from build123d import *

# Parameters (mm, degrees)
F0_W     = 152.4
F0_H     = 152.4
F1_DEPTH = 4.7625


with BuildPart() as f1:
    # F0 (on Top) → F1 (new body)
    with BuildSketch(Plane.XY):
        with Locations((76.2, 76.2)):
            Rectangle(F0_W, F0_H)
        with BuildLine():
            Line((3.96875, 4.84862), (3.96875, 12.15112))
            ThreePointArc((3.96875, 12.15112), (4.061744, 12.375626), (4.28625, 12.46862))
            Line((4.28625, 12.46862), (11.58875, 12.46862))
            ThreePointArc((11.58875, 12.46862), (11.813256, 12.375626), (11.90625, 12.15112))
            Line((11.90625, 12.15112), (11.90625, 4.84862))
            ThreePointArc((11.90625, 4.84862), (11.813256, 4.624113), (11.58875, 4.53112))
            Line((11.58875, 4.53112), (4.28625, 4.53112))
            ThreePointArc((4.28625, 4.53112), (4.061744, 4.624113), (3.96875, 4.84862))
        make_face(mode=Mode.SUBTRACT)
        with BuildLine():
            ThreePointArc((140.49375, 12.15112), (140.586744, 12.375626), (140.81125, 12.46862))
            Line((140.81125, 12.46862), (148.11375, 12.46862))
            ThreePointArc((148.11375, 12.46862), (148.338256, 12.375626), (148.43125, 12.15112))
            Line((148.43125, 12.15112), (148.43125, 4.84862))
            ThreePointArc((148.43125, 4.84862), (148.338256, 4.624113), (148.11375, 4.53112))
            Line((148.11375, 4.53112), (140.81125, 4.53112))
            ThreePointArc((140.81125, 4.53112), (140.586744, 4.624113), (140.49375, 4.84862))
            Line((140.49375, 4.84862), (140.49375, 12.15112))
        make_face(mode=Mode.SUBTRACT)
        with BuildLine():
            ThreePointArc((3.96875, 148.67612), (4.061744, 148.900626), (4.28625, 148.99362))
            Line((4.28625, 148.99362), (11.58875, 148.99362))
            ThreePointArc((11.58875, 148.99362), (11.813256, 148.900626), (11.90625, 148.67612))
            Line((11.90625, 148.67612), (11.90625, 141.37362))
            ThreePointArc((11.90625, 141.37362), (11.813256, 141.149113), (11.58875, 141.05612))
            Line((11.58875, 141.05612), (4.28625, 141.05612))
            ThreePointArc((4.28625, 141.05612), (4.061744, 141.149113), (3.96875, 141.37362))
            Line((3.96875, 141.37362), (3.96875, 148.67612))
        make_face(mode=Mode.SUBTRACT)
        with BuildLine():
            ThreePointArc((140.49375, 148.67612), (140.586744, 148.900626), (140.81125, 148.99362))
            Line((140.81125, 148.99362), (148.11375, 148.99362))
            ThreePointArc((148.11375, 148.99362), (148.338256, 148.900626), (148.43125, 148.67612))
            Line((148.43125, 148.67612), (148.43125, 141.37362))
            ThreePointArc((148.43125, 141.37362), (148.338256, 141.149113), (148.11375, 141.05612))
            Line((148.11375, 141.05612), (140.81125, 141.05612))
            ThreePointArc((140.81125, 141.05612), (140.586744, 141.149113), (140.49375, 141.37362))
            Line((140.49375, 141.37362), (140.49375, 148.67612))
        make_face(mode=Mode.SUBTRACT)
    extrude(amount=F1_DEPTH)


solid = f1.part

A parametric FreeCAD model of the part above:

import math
import FreeCAD as App
import Part
import Sketcher
Q = App.Units.Quantity

doc = App.newDocument("Part")
body = doc.addObject("PartDesign::Body", "Body")

sketch1 = doc.addObject("Sketcher::SketchObject", "Sketch")
body.addObject(sketch1)
sketch1.AttachmentSupport = (doc.XY_Plane, [""])
sketch1.MapMode = "FlatFace"
sketch1.addGeometry([
    Part.LineSegment(App.Vector(0, 152.4, 0), App.Vector(0, 0, 0)),
    Part.LineSegment(App.Vector(0, 0, 0), App.Vector(152.4, 0, 0)),
    Part.LineSegment(App.Vector(152.4, 0, 0), App.Vector(152.4, 152.4, 0)),
    Part.LineSegment(App.Vector(152.4, 152.4, 0), App.Vector(0, 152.4, 0)),
    Part.ArcOfCircle(Part.Circle(App.Vector(4.29, 4.85, 0), App.Vector(0, 0, 1), 0.32), math.radians(180), math.radians(270)),
    Part.LineSegment(App.Vector(3.97, 4.85, 0), App.Vector(3.97, 12.15, 0)),
    Part.ArcOfCircle(Part.Circle(App.Vector(4.29, 12.15, 0), App.Vector(0, 0, 1), 0.32), math.radians(90), math.radians(180)),
    Part.LineSegment(App.Vector(4.29, 12.47, 0), App.Vector(11.59, 12.47, 0)),
    Part.ArcOfCircle(Part.Circle(App.Vector(11.59, 12.15, 0), App.Vector(0, 0, 1), 0.32), math.radians(0), math.radians(90)),
    Part.LineSegment(App.Vector(11.91, 12.15, 0), App.Vector(11.91, 4.85, 0)),
    Part.ArcOfCircle(Part.Circle(App.Vector(11.59, 4.85, 0), App.Vector(0, 0, 1), 0.32), math.radians(-90), math.radians(0)),
    Part.LineSegment(App.Vector(11.59, 4.53, 0), App.Vector(4.29, 4.53, 0)),
    Part.LineSegment(App.Vector(140.49, 4.85, 0), App.Vector(140.49, 12.15, 0)),
    Part.ArcOfCircle(Part.Circle(App.Vector(140.81, 12.15, 0), App.Vector(0, 0, 1), 0.32), math.radians(90), math.radians(180)),
    Part.LineSegment(App.Vector(140.81, 12.47, 0), App.Vector(148.11, 12.47, 0)),
    Part.ArcOfCircle(Part.Circle(App.Vector(148.11, 12.15, 0), App.Vector(0, 0, 1), 0.32), math.radians(0), math.radians(90)),
    Part.LineSegment(App.Vector(148.43, 12.15, 0), App.Vector(148.43, 4.85, 0)),
    Part.ArcOfCircle(Part.Circle(App.Vector(148.11, 4.85, 0), App.Vector(0, 0, 1), 0.32), math.radians(-90), math.radians(0)),
    Part.LineSegment(App.Vector(148.11, 4.53, 0), App.Vector(140.81, 4.53, 0)),
    Part.ArcOfCircle(Part.Circle(App.Vector(140.81, 4.85, 0), App.Vector(0, 0, 1), 0.32), math.radians(180), math.radians(270)),
    Part.LineSegment(App.Vector(3.97, 141.37, 0), App.Vector(3.97, 148.68, 0)),
    Part.ArcOfCircle(Part.Circle(App.Vector(4.29, 148.68, 0), App.Vector(0, 0, 1), 0.32), math.radians(90), math.radians(180)),
    Part.LineSegment(App.Vector(4.29, 148.99, 0), App.Vector(11.59, 148.99, 0)),
    Part.ArcOfCircle(Part.Circle(App.Vector(11.59, 148.68, 0), App.Vector(0, 0, 1), 0.32), math.radians(0), math.radians(90)),
    Part.LineSegment(App.Vector(11.91, 148.68, 0), App.Vector(11.91, 141.37, 0)),
    Part.ArcOfCircle(Part.Circle(App.Vector(11.59, 141.37, 0), App.Vector(0, 0, 1), 0.32), math.radians(-90), math.radians(0)),
    Part.LineSegment(App.Vector(11.59, 141.06, 0), App.Vector(4.29, 141.06, 0)),
    Part.ArcOfCircle(Part.Circle(App.Vector(4.29, 141.37, 0), App.Vector(0, 0, 1), 0.32), math.radians(180), math.radians(270)),
    Part.LineSegment(App.Vector(140.49, 141.37, 0), App.Vector(140.49, 148.68, 0)),
    Part.ArcOfCircle(Part.Circle(App.Vector(140.81, 148.68, 0), App.Vector(0, 0, 1), 0.32), math.radians(90), math.radians(180)),
    Part.LineSegment(App.Vector(140.81, 148.99, 0), App.Vector(148.11, 148.99, 0)),
    Part.ArcOfCircle(Part.Circle(App.Vector(148.11, 148.68, 0), App.Vector(0, 0, 1), 0.32), math.radians(0), math.radians(90)),
    Part.LineSegment(App.Vector(148.43, 148.68, 0), App.Vector(148.43, 141.37, 0)),
    Part.ArcOfCircle(Part.Circle(App.Vector(148.11, 141.37, 0), App.Vector(0, 0, 1), 0.32), math.radians(-90), math.radians(0)),
    Part.LineSegment(App.Vector(148.11, 141.06, 0), App.Vector(140.81, 141.06, 0)),
    Part.ArcOfCircle(Part.Circle(App.Vector(140.81, 141.37, 0), App.Vector(0, 0, 1), 0.32), math.radians(180), math.radians(270)),
], False)
sketch1.addConstraint([
    Sketcher.Constraint("Coincident", 0, 2, 1, 1),
    Sketcher.Constraint("Coincident", 1, 2, 2, 1),
    Sketcher.Constraint("Coincident", 2, 2, 3, 1),
    Sketcher.Constraint("Coincident", 3, 2, 0, 1),
    Sketcher.Constraint("Tangent", 4, 1, 5, 1),
    Sketcher.Constraint("Coincident", 5, 2, 6, 2),
    Sketcher.Constraint("Coincident", 6, 1, 7, 1),
    Sketcher.Constraint("Coincident", 7, 2, 8, 2),
    Sketcher.Constraint("Coincident", 8, 1, 9, 1),
    Sketcher.Constraint("Tangent", 9, 2, 10, 2),
    Sketcher.Constraint("Tangent", 10, 1, 11, 1),
    Sketcher.Constraint("Tangent", 11, 2, 4, 2),
    Sketcher.Constraint("Coincident", 12, 2, 13, 2),
    Sketcher.Constraint("Coincident", 13, 1, 14, 1),
    Sketcher.Constraint("Coincident", 14, 2, 15, 2),
    Sketcher.Constraint("Coincident", 15, 1, 16, 1),
    Sketcher.Constraint("Tangent", 16, 2, 17, 2),
    Sketcher.Constraint("Tangent", 17, 1, 18, 1),
    Sketcher.Constraint("Tangent", 18, 2, 19, 2),
    Sketcher.Constraint("Tangent", 19, 1, 12, 1),
    Sketcher.Constraint("Coincident", 20, 2, 21, 2),
    Sketcher.Constraint("Coincident", 21, 1, 22, 1),
    Sketcher.Constraint("Coincident", 22, 2, 23, 2),
    Sketcher.Constraint("Coincident", 23, 1, 24, 1),
    Sketcher.Constraint("Tangent", 24, 2, 25, 2),
    Sketcher.Constraint("Tangent", 25, 1, 26, 1),
    Sketcher.Constraint("Tangent", 26, 2, 27, 2),
    Sketcher.Constraint("Tangent", 27, 1, 20, 1),
    Sketcher.Constraint("Coincident", 28, 2, 29, 2),
    Sketcher.Constraint("Coincident", 29, 1, 30, 1),
    Sketcher.Constraint("Coincident", 30, 2, 31, 2),
    Sketcher.Constraint("Coincident", 31, 1, 32, 1),
    Sketcher.Constraint("Tangent", 32, 2, 33, 2),
    Sketcher.Constraint("Tangent", 33, 1, 34, 1),
    Sketcher.Constraint("Tangent", 34, 2, 35, 2),
    Sketcher.Constraint("Tangent", 35, 1, 28, 1),
    Sketcher.Constraint("Vertical", 0),
    Sketcher.Constraint("Horizontal", 1),
    Sketcher.Constraint("Vertical", 2),
    Sketcher.Constraint("Horizontal", 3),
    Sketcher.Constraint("Vertical", 5),
    Sketcher.Constraint("Horizontal", 7),
    Sketcher.Constraint("Vertical", 9),
    Sketcher.Constraint("Horizontal", 11),
    Sketcher.Constraint("Vertical", 12),
    Sketcher.Constraint("Horizontal", 14),
    Sketcher.Constraint("Vertical", 16),
    Sketcher.Constraint("Horizontal", 18),
    Sketcher.Constraint("Vertical", 20),
    Sketcher.Constraint("Horizontal", 22),
    Sketcher.Constraint("Vertical", 24),
    Sketcher.Constraint("Horizontal", 26),
    Sketcher.Constraint("Vertical", 28),
    Sketcher.Constraint("Horizontal", 30),
    Sketcher.Constraint("Vertical", 32),
    Sketcher.Constraint("Horizontal", 34),
    Sketcher.Constraint("Coincident", 0, 2, -1, 1),
    Sketcher.Constraint("Equal", 4, 6),
    Sketcher.Constraint("Equal", 6, 8),
    Sketcher.Constraint("Equal", 8, 10),
    Sketcher.Constraint("Equal", 10, 13),
    Sketcher.Constraint("Equal", 13, 15),
    Sketcher.Constraint("Equal", 15, 17),
    Sketcher.Constraint("Equal", 17, 19),
    Sketcher.Constraint("Equal", 19, 21),
    Sketcher.Constraint("Equal", 21, 23),
    Sketcher.Constraint("Equal", 23, 25),
    Sketcher.Constraint("Equal", 25, 27),
    Sketcher.Constraint("Equal", 27, 29),
    Sketcher.Constraint("Equal", 29, 31),
    Sketcher.Constraint("Equal", 31, 33),
    Sketcher.Constraint("Equal", 33, 35),
    Sketcher.Constraint("Horizontal", 8, 3, 13, 3),
    Sketcher.Constraint("Horizontal", 10, 3, 17, 3),
    Sketcher.Constraint("Horizontal", 23, 3, 29, 3),
    Sketcher.Constraint("Horizontal", 27, 3, 33, 3),
    Sketcher.Constraint("Horizontal", 15, 3, 5, 2),
    Sketcher.Constraint("Horizontal", 5, 2, 8, 1),
    Sketcher.Constraint("Horizontal", 8, 1, 12, 2),
    Sketcher.Constraint("Horizontal", 12, 2, 15, 1),
    Sketcher.Constraint("Horizontal", 31, 3, 20, 2),
    Sketcher.Constraint("Horizontal", 20, 2, 23, 1),
    Sketcher.Constraint("Horizontal", 23, 1, 28, 2),
    Sketcher.Constraint("Horizontal", 28, 2, 31, 1),
    Sketcher.Constraint("Vertical", 6, 3, 21, 3),
    Sketcher.Constraint("Vertical", 10, 3, 23, 3),
    Sketcher.Constraint("Vertical", 19, 3, 29, 3),
    Sketcher.Constraint("Vertical", 17, 3, 31, 3),
    Sketcher.Constraint("Vertical", 27, 3, 6, 1),
    Sketcher.Constraint("Vertical", 25, 3, 7, 2),
    Sketcher.Constraint("Vertical", 35, 3, 13, 1),
    Sketcher.Constraint("Vertical", 33, 3, 14, 2),
    Sketcher.Constraint("Vertical", 11, 2, 21, 1),
    Sketcher.Constraint("Vertical", 10, 1, 22, 2),
    Sketcher.Constraint("Vertical", 18, 2, 29, 1),
    Sketcher.Constraint("Vertical", 17, 1, 30, 2),
    Sketcher.Constraint("Equal", 11, 14),
    Sketcher.Constraint("Equal", 3, 0),
    Sketcher.Constraint("Equal", 34, 5),
    Sketcher.Constraint("Equal", 16, 20),
    Sketcher.Constraint("DistanceX", 1, 1, 1, 2, Q("6 in")),
    Sketcher.Constraint("Radius", 4, Q("0.0125 in")),
    Sketcher.Constraint("DistanceX", 4, 1, 10, 3, Q("0.3 in")),
    Sketcher.Constraint("DistanceX", -1, 1, 4, 1, Q("0.15625 in")),
    Sketcher.Constraint("DistanceX", -1, 1, 12, 2, Q("5.53125 in")),
    Sketcher.Constraint("DistanceY", 6, 3, 21, 3, Q("5.375 in")),
    Sketcher.Constraint("DistanceY", -1, 1, 4, 3, Q("4.84862 mm")),
])
pad1 = doc.addObject("PartDesign::Pad", "Pad")
body.addObject(pad1)
pad1.Profile = sketch1
pad1.Length = Q("0.1875 in")

doc.recompute()
